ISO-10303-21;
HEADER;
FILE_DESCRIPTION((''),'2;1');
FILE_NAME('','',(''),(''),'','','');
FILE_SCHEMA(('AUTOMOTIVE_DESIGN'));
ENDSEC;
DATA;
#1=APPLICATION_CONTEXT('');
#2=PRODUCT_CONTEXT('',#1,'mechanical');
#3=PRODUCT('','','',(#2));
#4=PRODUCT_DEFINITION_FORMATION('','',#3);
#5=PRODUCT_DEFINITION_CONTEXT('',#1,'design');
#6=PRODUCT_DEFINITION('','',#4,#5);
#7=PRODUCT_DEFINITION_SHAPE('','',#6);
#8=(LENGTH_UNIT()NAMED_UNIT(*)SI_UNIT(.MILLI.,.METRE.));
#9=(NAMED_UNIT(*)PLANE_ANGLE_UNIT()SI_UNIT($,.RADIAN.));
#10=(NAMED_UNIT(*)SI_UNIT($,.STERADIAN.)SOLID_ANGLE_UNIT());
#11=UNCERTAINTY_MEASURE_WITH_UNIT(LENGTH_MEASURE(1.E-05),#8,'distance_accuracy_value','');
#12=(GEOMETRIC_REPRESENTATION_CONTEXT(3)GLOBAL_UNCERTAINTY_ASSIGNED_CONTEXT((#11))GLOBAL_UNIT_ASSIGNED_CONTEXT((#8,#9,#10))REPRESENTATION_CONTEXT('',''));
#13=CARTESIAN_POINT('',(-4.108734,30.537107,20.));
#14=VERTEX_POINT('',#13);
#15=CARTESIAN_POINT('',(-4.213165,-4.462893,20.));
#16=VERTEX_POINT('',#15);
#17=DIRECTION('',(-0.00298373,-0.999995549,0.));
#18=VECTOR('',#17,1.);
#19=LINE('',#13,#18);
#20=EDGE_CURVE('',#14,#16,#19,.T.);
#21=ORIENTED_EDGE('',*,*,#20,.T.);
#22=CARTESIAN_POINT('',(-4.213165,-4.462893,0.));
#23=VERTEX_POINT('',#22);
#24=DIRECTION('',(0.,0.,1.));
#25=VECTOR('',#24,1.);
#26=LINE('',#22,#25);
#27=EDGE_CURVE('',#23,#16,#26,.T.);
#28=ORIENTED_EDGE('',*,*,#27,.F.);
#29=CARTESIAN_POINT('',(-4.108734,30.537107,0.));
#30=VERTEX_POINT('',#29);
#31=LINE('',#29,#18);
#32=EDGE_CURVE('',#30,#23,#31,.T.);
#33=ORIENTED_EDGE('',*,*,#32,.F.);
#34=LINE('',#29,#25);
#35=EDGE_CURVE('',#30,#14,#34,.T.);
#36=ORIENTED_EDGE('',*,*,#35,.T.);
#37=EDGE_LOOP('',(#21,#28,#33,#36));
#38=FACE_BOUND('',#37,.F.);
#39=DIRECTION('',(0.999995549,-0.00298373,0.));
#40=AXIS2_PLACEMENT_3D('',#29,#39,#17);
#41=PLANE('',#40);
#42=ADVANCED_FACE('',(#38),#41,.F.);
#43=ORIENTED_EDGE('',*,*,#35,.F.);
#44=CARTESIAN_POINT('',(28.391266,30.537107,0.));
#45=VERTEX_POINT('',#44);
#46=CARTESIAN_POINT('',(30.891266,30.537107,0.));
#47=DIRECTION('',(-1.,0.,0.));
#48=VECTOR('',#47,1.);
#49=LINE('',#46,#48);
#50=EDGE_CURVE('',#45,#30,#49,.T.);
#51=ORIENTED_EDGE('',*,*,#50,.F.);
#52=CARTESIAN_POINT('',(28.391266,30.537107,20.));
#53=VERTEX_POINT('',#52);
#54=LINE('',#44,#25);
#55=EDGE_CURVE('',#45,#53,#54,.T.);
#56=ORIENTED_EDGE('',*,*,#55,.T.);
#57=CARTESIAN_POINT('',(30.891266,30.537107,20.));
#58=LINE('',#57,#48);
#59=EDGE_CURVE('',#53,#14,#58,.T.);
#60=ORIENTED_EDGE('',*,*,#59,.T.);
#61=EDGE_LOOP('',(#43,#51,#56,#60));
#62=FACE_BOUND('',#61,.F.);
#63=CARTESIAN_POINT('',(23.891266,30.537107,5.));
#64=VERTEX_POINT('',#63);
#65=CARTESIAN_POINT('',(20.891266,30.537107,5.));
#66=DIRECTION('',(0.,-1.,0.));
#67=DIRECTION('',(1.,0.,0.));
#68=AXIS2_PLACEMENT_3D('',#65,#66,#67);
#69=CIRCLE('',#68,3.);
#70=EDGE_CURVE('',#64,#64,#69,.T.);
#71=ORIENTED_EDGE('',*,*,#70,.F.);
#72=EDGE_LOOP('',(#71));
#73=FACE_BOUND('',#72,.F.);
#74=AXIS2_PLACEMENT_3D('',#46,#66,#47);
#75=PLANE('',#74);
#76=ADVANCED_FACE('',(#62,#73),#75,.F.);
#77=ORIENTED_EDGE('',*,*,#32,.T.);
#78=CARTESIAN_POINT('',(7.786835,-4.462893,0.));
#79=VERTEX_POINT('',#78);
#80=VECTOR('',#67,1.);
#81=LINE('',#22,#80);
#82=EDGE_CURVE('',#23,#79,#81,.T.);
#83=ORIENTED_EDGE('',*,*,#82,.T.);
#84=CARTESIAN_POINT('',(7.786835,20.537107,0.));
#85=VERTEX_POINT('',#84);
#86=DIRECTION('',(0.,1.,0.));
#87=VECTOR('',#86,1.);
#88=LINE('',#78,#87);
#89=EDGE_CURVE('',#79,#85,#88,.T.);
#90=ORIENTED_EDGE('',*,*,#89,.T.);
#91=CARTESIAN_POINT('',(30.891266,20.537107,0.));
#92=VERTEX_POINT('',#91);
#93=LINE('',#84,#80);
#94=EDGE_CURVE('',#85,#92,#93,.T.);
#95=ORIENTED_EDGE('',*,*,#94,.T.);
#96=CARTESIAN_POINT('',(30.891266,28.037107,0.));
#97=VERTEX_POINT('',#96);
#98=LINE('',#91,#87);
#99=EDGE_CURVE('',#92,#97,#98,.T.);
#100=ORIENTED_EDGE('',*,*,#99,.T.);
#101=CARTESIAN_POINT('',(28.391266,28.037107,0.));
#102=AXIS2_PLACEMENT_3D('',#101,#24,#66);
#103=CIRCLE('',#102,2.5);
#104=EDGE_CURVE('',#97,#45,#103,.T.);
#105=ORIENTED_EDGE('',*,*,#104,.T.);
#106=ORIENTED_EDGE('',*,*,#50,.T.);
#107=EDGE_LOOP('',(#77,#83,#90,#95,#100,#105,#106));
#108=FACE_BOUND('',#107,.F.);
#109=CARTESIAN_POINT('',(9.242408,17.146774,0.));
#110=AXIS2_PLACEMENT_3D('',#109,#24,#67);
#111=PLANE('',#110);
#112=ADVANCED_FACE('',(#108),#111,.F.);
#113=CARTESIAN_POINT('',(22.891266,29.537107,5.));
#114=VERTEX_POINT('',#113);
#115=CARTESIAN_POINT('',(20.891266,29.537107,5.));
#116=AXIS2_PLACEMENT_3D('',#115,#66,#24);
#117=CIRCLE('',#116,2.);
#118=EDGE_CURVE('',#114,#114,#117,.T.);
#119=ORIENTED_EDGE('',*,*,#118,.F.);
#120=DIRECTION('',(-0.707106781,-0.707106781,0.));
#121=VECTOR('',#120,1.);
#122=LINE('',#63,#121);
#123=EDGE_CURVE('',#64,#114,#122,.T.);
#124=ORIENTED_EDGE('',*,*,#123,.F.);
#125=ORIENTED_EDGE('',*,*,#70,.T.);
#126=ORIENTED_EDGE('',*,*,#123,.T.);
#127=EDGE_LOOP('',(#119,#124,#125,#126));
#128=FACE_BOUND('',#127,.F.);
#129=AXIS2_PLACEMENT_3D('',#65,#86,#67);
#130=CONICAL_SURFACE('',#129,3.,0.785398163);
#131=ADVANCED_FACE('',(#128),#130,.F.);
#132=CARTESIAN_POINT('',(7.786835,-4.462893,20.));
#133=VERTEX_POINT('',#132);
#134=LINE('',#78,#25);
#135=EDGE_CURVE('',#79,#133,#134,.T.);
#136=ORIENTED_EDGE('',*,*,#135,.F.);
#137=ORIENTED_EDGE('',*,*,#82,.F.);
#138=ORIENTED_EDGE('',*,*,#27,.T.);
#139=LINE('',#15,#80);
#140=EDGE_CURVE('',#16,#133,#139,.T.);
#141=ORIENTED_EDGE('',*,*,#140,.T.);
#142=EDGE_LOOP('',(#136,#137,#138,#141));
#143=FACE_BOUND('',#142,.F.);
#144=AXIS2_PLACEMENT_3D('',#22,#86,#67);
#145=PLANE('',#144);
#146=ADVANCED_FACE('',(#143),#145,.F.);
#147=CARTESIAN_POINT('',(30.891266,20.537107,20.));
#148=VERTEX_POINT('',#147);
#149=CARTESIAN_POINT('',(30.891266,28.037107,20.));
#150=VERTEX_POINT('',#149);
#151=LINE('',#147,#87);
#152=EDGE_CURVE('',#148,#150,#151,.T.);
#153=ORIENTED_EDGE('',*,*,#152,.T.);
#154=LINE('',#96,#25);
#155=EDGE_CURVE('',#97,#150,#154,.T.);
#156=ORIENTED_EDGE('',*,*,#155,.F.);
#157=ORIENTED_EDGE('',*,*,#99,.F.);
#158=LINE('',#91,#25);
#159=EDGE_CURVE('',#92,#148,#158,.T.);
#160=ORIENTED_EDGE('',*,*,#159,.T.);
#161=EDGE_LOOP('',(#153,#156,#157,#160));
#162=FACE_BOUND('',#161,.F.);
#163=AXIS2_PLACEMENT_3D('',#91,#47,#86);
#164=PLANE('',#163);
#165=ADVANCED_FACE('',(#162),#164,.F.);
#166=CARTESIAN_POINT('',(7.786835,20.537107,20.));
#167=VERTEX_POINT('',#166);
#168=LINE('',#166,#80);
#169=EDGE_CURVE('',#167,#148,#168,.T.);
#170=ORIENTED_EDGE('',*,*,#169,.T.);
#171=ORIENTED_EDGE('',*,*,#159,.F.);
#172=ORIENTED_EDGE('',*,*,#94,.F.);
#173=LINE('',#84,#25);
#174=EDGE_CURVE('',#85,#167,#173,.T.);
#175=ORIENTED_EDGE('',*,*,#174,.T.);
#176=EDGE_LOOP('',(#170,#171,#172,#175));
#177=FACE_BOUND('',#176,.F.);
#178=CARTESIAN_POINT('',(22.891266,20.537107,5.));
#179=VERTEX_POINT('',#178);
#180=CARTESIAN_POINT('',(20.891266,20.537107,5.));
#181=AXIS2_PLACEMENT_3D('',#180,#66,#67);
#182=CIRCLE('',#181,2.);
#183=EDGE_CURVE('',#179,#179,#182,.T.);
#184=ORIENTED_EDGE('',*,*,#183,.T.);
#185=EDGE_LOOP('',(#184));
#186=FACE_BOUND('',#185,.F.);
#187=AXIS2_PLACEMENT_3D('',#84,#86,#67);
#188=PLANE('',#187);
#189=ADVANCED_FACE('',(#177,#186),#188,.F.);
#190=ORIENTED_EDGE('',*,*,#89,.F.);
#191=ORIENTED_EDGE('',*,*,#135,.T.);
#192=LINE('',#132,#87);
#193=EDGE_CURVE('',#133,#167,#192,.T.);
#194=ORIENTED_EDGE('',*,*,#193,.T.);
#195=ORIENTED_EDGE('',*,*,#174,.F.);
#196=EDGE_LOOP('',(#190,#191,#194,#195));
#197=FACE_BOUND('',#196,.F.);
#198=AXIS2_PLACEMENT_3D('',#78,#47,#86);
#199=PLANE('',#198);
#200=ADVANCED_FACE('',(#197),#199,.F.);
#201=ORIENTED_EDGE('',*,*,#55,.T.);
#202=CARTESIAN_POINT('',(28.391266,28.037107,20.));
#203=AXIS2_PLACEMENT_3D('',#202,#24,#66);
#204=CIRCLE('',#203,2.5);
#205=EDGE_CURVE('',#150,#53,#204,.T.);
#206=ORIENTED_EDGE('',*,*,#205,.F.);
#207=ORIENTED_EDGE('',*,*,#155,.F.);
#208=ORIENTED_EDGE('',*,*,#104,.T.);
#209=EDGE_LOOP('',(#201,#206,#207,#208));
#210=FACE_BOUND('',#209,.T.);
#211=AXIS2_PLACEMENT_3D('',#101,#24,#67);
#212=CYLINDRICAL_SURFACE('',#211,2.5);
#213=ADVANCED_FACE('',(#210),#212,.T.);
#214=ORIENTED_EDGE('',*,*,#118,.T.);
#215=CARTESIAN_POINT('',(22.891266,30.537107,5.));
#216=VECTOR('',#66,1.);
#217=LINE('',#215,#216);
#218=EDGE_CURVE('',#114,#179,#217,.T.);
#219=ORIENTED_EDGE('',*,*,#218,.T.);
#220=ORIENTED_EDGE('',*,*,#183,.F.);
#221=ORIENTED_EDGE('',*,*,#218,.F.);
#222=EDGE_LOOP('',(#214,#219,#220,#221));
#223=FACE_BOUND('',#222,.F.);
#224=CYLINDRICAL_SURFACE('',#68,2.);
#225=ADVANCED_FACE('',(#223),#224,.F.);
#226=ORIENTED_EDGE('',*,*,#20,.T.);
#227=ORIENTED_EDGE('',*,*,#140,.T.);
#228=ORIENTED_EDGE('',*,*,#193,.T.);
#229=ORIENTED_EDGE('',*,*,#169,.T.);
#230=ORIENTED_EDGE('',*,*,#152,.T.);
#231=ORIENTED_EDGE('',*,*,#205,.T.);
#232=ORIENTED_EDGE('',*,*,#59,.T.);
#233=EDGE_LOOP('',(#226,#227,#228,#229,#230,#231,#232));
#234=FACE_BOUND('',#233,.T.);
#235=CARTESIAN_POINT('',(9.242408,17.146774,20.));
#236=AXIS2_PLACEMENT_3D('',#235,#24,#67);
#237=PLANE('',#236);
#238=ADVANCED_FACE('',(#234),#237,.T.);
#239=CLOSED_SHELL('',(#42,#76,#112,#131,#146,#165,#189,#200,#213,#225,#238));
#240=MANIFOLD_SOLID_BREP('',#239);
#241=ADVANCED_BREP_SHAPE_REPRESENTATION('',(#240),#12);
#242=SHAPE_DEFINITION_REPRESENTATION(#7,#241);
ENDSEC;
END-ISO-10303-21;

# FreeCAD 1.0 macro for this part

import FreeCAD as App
import Part
import Sketcher


def edges_at(feature, points):
    """Names of the edges that pass closest to the given points."""
    edges = feature.Shape.Edges
    near = lambda p: min(range(len(edges)), key=lambda i: edges[i].distToShape(Part.Vertex(*p))[0])
    return sorted({f"Edge{near(p) + 1}" for p in points})


def add_polygon(sketch, points):
    """Adds a closed chain of lines whose ends are joined by coincident constraints."""
    first, n = sketch.GeometryCount, len(points)
    for a, b in zip(points, points[1:] + points[:1]):
        sketch.addGeometry(Part.LineSegment(App.Vector(*a, 0), App.Vector(*b, 0)), False)
    for i in range(n):
        sketch.addConstraint(Sketcher.Constraint("Coincident", first + i, 2, first + (i + 1) % n, 1))

doc = App.newDocument("Part")
params = doc.addObject("Spreadsheet::Sheet", "Params")
for row, (alias, value) in enumerate([
    ("sketch1_width", "12 mm"),
    ("sketch1_width2", "35 mm"),
    ("sketch1_height", "25 mm"),
    ("sketch1_height2", "10 mm"),
    ("pad1_length", "20 mm"),
    ("sketch2_diameter", "4 mm"),
    ("hole_diameter", "4 mm"),
    ("hole_csink_diameter", "6 mm"),
    ("fillet_radius", "2.5 mm"),
], start=1):
    params.set(f"A{row}", alias)
    params.set(f"B{row}", "=" + value)
    params.setAlias(f"B{row}", alias)

body = doc.addObject("PartDesign::Body", "Body")

# Sketch on XY plane
sketch1 = doc.addObject("Sketcher::SketchObject", "Sketch")
body.addObject(sketch1)
sketch1.AttachmentSupport = (doc.XY_Plane, [""])
sketch1.MapMode = "FlatFace"
add_polygon(sketch1, [(-4, 31), (-4, -4), (8, -4), (8, 21), (31, 21), (31, 31)])  # lines 0-5
sketch1.addConstraint(Sketcher.Constraint("Horizontal", 1))
sketch1.addConstraint(Sketcher.Constraint("Vertical", 2))
sketch1.addConstraint(Sketcher.Constraint("Horizontal", 3))
sketch1.addConstraint(Sketcher.Constraint("Vertical", 4))
sketch1.addConstraint(Sketcher.Constraint("Horizontal", 5))
sketch1.addConstraint(Sketcher.Constraint("DistanceX", 1, 1, 1, 2, 12.0))
sketch1.addConstraint(Sketcher.Constraint("DistanceX", 5, 2, 5, 1, 35.0))
sketch1.addConstraint(Sketcher.Constraint("DistanceY", 2, 1, 2, 2, 25.0))
sketch1.addConstraint(Sketcher.Constraint("DistanceY", 4, 1, 4, 2, 10.0))
sketch1.addConstraint(Sketcher.Constraint("DistanceX", 3, 1, 3, 2, 23.104431))
sketch1.addConstraint(Sketcher.Constraint("DistanceX", 0, 2, -1, 1, 4.213165))
sketch1.addConstraint(Sketcher.Constraint("DistanceY", 0, 2, -1, 1, 4.462893))
sketch1.setExpression("Constraints[11]", "Params.sketch1_width")
sketch1.setExpression("Constraints[12]", "Params.sketch1_width2")
sketch1.setExpression("Constraints[13]", "Params.sketch1_height")
sketch1.setExpression("Constraints[14]", "Params.sketch1_height2")
pad1 = doc.addObject("PartDesign::Pad", "Pad")
body.addObject(pad1)
pad1.Profile = sketch1
pad1.setExpression("Length", "Params.pad1_length")

# Sketch on XZ plane
sketch2 = doc.addObject("Sketcher::SketchObject", "Sketch001")
body.addObject(sketch2)
sketch2.AttachmentSupport = (doc.XZ_Plane, [""])
sketch2.MapMode = "FlatFace"
sketch2.AttachmentOffset = App.Placement(App.Vector(0, 0, -30.537107), App.Rotation())
sketch2.addGeometry(Part.Circle(App.Vector(20.9, 5, 0), App.Vector(0, 0, 1), 2), False)
sketch2.addConstraint(Sketcher.Constraint("Diameter", 0, 4.0))
sketch2.addConstraint(Sketcher.Constraint("DistanceY", -1, 1, 0, 3, 5.0))
sketch2.addConstraint(Sketcher.Constraint("DistanceX", -1, 1, 0, 3, 20.891266))
sketch2.setExpression("Constraints[0]", "Params.sketch2_diameter")
doc.recompute()
hole = doc.addObject("PartDesign::Hole", "Hole")
body.addObject(hole)
hole.Profile = sketch2
hole.ThreadType = "None"
hole.setExpression("Diameter", "Params.hole_diameter")
hole.DepthType = "ThroughAll"
hole.HoleCutType = "Countersink"
hole.setExpression("HoleCutDiameter", "Params.hole_csink_diameter")
hole.HoleCutCountersinkAngle = 90
hole.Reversed = True
doc.recompute()

fillet = doc.addObject("PartDesign::Fillet", "Fillet")
body.addObject(fillet)
fillet.Base = (hole, edges_at(hole, [(30.891, 30.537, 10)]))
fillet.setExpression("Radius", "Params.fillet_radius")

doc.recompute()
